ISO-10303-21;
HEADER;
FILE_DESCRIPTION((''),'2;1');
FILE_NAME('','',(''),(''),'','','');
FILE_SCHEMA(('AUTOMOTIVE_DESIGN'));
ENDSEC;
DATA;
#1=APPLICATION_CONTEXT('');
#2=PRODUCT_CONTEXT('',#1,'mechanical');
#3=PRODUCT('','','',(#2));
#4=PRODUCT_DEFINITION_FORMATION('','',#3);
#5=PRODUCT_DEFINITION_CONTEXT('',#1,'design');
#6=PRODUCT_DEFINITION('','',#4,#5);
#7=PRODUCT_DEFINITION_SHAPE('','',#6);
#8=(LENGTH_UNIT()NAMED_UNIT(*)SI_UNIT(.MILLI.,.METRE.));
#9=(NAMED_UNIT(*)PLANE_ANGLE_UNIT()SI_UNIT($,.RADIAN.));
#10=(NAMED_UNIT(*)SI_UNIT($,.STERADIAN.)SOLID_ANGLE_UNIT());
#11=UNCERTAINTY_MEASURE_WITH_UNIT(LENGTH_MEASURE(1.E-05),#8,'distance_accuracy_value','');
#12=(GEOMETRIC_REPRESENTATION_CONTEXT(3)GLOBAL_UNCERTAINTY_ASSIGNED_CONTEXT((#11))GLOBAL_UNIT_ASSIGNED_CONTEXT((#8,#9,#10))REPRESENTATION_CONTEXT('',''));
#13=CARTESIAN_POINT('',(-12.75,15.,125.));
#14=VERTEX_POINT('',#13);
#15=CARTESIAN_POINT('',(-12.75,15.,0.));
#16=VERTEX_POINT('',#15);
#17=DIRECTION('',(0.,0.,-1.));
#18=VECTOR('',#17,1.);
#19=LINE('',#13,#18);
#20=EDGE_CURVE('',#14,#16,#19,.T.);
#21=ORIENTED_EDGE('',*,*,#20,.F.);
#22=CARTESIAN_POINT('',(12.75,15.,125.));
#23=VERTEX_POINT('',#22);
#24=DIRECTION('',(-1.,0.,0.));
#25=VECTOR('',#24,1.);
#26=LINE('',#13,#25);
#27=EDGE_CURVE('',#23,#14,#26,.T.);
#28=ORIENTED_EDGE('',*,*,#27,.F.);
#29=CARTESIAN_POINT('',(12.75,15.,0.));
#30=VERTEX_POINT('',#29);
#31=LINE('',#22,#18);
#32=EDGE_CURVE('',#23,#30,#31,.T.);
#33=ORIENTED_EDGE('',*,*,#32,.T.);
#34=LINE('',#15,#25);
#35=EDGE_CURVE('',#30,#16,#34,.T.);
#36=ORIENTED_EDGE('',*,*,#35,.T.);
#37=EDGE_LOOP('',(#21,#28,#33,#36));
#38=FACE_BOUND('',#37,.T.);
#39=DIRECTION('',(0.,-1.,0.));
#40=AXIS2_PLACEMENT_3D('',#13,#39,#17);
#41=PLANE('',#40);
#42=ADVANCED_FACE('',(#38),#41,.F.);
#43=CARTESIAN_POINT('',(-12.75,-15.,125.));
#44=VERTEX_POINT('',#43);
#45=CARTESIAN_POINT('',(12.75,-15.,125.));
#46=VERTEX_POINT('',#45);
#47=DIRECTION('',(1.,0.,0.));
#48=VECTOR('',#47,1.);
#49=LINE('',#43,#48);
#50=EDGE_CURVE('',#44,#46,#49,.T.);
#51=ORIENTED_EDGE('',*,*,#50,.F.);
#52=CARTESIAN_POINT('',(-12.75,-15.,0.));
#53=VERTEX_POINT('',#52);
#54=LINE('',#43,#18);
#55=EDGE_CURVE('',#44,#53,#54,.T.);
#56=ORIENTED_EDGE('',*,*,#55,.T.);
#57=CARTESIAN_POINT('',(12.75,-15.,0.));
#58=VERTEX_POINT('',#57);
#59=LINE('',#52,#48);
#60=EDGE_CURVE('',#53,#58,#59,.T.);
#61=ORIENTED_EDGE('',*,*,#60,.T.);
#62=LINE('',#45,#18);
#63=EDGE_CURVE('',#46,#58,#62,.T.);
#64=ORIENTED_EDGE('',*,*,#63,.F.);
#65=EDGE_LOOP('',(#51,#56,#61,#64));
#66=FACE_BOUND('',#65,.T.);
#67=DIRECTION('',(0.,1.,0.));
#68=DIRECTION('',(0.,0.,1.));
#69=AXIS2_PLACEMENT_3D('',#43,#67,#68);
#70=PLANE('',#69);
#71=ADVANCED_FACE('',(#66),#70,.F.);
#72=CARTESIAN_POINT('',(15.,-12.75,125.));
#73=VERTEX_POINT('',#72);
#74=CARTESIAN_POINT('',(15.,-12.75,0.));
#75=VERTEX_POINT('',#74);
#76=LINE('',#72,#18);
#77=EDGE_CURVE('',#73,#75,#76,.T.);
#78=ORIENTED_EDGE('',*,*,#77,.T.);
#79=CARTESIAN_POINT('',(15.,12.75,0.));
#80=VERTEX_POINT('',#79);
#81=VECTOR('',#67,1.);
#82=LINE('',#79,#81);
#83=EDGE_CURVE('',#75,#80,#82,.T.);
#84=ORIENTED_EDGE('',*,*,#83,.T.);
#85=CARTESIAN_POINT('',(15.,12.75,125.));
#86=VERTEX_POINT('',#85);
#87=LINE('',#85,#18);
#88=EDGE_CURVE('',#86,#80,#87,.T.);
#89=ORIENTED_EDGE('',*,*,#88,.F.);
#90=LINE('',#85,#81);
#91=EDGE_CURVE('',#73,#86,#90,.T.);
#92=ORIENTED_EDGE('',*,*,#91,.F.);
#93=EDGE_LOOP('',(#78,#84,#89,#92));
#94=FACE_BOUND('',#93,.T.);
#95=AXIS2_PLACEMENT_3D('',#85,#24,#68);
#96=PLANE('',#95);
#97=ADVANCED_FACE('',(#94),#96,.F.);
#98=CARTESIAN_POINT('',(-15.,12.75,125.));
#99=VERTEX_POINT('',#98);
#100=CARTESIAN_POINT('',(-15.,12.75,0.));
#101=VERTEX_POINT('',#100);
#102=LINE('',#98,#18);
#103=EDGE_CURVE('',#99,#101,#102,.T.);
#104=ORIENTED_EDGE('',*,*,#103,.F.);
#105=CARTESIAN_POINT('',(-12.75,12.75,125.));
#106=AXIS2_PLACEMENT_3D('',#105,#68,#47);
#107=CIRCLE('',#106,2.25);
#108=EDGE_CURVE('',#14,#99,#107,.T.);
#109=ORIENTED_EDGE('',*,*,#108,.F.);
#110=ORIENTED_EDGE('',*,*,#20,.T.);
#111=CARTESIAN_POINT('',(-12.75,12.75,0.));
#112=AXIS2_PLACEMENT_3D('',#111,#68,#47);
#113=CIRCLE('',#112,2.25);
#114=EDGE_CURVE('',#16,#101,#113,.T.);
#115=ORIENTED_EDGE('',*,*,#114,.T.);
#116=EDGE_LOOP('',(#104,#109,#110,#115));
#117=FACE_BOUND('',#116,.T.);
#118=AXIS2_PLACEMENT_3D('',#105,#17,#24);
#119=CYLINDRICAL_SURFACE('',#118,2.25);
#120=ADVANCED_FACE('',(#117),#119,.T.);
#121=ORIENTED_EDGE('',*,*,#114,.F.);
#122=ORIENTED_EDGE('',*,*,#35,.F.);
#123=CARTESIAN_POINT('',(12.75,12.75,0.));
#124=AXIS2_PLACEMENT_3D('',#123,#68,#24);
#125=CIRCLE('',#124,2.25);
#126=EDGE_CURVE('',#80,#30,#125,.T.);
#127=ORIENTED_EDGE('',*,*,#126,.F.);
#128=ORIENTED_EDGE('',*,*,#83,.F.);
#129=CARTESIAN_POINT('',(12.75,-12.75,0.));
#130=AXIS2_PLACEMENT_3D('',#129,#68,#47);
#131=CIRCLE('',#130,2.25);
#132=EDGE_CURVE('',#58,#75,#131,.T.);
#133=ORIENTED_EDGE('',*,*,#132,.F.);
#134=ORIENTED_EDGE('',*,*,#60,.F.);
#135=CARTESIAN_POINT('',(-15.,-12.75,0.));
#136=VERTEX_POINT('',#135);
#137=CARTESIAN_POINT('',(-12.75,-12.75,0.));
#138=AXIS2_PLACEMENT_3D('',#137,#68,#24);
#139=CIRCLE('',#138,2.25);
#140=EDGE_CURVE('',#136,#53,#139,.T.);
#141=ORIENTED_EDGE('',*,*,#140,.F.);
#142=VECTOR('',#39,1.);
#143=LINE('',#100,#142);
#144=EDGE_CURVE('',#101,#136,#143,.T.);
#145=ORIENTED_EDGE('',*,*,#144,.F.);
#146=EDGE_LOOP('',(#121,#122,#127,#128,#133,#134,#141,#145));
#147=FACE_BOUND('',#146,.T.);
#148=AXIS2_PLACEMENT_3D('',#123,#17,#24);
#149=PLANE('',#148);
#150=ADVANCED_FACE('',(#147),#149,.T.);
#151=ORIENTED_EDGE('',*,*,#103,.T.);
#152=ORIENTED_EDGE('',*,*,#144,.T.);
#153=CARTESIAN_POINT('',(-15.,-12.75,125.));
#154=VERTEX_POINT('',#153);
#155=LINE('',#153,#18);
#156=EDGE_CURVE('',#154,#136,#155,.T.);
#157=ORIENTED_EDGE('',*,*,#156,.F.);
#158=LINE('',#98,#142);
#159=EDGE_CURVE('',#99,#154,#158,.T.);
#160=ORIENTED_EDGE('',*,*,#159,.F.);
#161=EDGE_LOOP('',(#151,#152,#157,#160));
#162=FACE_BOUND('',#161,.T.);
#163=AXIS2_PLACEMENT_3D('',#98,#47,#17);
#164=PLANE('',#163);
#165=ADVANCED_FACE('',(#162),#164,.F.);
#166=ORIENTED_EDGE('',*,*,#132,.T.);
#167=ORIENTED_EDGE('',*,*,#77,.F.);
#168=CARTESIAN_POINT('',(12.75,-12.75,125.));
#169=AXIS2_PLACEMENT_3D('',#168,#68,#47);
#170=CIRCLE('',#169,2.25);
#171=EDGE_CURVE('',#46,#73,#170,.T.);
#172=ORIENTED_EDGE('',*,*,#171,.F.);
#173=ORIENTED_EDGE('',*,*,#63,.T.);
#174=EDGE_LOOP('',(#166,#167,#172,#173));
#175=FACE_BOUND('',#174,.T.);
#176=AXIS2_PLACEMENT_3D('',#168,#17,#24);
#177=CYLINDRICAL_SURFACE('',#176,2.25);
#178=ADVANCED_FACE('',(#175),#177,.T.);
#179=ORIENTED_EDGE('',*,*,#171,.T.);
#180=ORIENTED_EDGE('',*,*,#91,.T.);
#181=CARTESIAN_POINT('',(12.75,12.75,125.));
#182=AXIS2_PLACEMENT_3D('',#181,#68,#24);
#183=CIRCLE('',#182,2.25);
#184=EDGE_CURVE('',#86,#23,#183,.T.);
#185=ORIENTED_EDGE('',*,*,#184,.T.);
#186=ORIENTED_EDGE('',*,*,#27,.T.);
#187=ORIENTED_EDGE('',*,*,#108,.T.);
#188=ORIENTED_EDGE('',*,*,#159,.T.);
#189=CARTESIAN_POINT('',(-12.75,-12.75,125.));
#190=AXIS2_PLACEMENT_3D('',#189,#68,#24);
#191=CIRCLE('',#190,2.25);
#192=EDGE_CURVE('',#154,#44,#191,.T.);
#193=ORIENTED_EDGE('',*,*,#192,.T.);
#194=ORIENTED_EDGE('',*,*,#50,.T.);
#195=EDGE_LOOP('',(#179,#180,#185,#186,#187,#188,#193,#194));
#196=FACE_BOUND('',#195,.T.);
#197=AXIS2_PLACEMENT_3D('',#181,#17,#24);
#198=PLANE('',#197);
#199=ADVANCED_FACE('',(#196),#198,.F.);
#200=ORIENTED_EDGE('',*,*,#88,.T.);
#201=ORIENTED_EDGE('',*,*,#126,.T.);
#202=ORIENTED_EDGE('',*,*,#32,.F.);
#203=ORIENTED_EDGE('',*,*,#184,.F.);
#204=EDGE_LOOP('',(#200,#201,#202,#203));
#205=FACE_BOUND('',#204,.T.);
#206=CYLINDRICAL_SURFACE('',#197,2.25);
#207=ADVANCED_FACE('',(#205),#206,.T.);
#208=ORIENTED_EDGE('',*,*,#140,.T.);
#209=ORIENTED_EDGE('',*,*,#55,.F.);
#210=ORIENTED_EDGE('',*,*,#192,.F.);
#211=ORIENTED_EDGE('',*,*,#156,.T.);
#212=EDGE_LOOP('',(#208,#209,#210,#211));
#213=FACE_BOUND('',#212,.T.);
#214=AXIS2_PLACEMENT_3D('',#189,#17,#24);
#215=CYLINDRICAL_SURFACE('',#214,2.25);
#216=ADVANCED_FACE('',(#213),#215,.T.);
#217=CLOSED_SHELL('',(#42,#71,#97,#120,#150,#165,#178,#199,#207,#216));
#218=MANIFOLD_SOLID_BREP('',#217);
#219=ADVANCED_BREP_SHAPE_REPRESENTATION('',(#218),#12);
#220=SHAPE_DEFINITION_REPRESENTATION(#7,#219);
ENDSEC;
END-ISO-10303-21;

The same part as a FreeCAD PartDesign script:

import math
import FreeCAD as App
import Part
import Sketcher
from FreeCAD import Vector
Q = App.Units.Quantity

doc = App.newDocument("Part")
body = doc.addObject("PartDesign::Body", "Body")

sketch1 = doc.addObject("Sketcher::SketchObject", "Sketch")
body.addObject(sketch1)
sketch1.AttachmentSupport = (doc.XY_Plane, [""])
sketch1.MapMode = "FlatFace"
sketch1.addGeometry([
    Part.LineSegment(Vector(-15, 12.8, 0), Vector(-15, -12.8, 0)),
    Part.ArcOfCircle(Part.Circle(Vector(-12.8, -12.8, 0), Vector(0, 0, 1), 2.2), math.radians(180), math.radians(270)),
    Part.LineSegment(Vector(-12.8, -15, 0), Vector(12.8, -15, 0)),
    Part.ArcOfCircle(Part.Circle(Vector(12.8, -12.8, 0), Vector(0, 0, 1), 2.2), math.radians(-90), math.radians(0)),
    Part.LineSegment(Vector(15, -12.8, 0), Vector(15, 12.8, 0)),
    Part.ArcOfCircle(Part.Circle(Vector(12.8, 12.8, 0), Vector(0, 0, 1), 2.2), math.radians(0), math.radians(90)),
    Part.LineSegment(Vector(12.8, 15, 0), Vector(-12.8, 15, 0)),
    Part.ArcOfCircle(Part.Circle(Vector(-12.8, 12.8, 0), Vector(0, 0, 1), 2.2), math.radians(90), math.radians(180)),
], False)
sketch1.addConstraint([
    Sketcher.Constraint("Tangent", 0, 2, 1, 1),
    Sketcher.Constraint("Tangent", 1, 2, 2, 1),
    Sketcher.Constraint("Tangent", 2, 2, 3, 1),
    Sketcher.Constraint("Tangent", 3, 2, 4, 1),
    Sketcher.Constraint("Tangent", 4, 2, 5, 1),
    Sketcher.Constraint("Tangent", 5, 2, 6, 1),
    Sketcher.Constraint("Tangent", 6, 2, 7, 1),
    Sketcher.Constraint("Tangent", 7, 2, 0, 1),
    Sketcher.Constraint("Vertical", 0),
    Sketcher.Constraint("Horizontal", 2),
    Sketcher.Constraint("Vertical", 4),
    Sketcher.Constraint("Horizontal", 6),
    Sketcher.Constraint("Equal", 1, 3),
    Sketcher.Constraint("Equal", 3, 5),
    Sketcher.Constraint("Equal", 5, 7),
    Sketcher.Constraint("Symmetric", 1, 3, 5, 3, -1, 1),
    Sketcher.Constraint("Equal", 6, 0),
    Sketcher.Constraint("Radius", 1, Q("2.25 mm")),
    Sketcher.Constraint("DistanceX", 2, 1, 2, 2, Q("25.5 mm")),
])
pad1 = doc.addObject("PartDesign::Pad", "Pad")
body.addObject(pad1)
pad1.Profile = sketch1
pad1.Length = 125

doc.recompute()
